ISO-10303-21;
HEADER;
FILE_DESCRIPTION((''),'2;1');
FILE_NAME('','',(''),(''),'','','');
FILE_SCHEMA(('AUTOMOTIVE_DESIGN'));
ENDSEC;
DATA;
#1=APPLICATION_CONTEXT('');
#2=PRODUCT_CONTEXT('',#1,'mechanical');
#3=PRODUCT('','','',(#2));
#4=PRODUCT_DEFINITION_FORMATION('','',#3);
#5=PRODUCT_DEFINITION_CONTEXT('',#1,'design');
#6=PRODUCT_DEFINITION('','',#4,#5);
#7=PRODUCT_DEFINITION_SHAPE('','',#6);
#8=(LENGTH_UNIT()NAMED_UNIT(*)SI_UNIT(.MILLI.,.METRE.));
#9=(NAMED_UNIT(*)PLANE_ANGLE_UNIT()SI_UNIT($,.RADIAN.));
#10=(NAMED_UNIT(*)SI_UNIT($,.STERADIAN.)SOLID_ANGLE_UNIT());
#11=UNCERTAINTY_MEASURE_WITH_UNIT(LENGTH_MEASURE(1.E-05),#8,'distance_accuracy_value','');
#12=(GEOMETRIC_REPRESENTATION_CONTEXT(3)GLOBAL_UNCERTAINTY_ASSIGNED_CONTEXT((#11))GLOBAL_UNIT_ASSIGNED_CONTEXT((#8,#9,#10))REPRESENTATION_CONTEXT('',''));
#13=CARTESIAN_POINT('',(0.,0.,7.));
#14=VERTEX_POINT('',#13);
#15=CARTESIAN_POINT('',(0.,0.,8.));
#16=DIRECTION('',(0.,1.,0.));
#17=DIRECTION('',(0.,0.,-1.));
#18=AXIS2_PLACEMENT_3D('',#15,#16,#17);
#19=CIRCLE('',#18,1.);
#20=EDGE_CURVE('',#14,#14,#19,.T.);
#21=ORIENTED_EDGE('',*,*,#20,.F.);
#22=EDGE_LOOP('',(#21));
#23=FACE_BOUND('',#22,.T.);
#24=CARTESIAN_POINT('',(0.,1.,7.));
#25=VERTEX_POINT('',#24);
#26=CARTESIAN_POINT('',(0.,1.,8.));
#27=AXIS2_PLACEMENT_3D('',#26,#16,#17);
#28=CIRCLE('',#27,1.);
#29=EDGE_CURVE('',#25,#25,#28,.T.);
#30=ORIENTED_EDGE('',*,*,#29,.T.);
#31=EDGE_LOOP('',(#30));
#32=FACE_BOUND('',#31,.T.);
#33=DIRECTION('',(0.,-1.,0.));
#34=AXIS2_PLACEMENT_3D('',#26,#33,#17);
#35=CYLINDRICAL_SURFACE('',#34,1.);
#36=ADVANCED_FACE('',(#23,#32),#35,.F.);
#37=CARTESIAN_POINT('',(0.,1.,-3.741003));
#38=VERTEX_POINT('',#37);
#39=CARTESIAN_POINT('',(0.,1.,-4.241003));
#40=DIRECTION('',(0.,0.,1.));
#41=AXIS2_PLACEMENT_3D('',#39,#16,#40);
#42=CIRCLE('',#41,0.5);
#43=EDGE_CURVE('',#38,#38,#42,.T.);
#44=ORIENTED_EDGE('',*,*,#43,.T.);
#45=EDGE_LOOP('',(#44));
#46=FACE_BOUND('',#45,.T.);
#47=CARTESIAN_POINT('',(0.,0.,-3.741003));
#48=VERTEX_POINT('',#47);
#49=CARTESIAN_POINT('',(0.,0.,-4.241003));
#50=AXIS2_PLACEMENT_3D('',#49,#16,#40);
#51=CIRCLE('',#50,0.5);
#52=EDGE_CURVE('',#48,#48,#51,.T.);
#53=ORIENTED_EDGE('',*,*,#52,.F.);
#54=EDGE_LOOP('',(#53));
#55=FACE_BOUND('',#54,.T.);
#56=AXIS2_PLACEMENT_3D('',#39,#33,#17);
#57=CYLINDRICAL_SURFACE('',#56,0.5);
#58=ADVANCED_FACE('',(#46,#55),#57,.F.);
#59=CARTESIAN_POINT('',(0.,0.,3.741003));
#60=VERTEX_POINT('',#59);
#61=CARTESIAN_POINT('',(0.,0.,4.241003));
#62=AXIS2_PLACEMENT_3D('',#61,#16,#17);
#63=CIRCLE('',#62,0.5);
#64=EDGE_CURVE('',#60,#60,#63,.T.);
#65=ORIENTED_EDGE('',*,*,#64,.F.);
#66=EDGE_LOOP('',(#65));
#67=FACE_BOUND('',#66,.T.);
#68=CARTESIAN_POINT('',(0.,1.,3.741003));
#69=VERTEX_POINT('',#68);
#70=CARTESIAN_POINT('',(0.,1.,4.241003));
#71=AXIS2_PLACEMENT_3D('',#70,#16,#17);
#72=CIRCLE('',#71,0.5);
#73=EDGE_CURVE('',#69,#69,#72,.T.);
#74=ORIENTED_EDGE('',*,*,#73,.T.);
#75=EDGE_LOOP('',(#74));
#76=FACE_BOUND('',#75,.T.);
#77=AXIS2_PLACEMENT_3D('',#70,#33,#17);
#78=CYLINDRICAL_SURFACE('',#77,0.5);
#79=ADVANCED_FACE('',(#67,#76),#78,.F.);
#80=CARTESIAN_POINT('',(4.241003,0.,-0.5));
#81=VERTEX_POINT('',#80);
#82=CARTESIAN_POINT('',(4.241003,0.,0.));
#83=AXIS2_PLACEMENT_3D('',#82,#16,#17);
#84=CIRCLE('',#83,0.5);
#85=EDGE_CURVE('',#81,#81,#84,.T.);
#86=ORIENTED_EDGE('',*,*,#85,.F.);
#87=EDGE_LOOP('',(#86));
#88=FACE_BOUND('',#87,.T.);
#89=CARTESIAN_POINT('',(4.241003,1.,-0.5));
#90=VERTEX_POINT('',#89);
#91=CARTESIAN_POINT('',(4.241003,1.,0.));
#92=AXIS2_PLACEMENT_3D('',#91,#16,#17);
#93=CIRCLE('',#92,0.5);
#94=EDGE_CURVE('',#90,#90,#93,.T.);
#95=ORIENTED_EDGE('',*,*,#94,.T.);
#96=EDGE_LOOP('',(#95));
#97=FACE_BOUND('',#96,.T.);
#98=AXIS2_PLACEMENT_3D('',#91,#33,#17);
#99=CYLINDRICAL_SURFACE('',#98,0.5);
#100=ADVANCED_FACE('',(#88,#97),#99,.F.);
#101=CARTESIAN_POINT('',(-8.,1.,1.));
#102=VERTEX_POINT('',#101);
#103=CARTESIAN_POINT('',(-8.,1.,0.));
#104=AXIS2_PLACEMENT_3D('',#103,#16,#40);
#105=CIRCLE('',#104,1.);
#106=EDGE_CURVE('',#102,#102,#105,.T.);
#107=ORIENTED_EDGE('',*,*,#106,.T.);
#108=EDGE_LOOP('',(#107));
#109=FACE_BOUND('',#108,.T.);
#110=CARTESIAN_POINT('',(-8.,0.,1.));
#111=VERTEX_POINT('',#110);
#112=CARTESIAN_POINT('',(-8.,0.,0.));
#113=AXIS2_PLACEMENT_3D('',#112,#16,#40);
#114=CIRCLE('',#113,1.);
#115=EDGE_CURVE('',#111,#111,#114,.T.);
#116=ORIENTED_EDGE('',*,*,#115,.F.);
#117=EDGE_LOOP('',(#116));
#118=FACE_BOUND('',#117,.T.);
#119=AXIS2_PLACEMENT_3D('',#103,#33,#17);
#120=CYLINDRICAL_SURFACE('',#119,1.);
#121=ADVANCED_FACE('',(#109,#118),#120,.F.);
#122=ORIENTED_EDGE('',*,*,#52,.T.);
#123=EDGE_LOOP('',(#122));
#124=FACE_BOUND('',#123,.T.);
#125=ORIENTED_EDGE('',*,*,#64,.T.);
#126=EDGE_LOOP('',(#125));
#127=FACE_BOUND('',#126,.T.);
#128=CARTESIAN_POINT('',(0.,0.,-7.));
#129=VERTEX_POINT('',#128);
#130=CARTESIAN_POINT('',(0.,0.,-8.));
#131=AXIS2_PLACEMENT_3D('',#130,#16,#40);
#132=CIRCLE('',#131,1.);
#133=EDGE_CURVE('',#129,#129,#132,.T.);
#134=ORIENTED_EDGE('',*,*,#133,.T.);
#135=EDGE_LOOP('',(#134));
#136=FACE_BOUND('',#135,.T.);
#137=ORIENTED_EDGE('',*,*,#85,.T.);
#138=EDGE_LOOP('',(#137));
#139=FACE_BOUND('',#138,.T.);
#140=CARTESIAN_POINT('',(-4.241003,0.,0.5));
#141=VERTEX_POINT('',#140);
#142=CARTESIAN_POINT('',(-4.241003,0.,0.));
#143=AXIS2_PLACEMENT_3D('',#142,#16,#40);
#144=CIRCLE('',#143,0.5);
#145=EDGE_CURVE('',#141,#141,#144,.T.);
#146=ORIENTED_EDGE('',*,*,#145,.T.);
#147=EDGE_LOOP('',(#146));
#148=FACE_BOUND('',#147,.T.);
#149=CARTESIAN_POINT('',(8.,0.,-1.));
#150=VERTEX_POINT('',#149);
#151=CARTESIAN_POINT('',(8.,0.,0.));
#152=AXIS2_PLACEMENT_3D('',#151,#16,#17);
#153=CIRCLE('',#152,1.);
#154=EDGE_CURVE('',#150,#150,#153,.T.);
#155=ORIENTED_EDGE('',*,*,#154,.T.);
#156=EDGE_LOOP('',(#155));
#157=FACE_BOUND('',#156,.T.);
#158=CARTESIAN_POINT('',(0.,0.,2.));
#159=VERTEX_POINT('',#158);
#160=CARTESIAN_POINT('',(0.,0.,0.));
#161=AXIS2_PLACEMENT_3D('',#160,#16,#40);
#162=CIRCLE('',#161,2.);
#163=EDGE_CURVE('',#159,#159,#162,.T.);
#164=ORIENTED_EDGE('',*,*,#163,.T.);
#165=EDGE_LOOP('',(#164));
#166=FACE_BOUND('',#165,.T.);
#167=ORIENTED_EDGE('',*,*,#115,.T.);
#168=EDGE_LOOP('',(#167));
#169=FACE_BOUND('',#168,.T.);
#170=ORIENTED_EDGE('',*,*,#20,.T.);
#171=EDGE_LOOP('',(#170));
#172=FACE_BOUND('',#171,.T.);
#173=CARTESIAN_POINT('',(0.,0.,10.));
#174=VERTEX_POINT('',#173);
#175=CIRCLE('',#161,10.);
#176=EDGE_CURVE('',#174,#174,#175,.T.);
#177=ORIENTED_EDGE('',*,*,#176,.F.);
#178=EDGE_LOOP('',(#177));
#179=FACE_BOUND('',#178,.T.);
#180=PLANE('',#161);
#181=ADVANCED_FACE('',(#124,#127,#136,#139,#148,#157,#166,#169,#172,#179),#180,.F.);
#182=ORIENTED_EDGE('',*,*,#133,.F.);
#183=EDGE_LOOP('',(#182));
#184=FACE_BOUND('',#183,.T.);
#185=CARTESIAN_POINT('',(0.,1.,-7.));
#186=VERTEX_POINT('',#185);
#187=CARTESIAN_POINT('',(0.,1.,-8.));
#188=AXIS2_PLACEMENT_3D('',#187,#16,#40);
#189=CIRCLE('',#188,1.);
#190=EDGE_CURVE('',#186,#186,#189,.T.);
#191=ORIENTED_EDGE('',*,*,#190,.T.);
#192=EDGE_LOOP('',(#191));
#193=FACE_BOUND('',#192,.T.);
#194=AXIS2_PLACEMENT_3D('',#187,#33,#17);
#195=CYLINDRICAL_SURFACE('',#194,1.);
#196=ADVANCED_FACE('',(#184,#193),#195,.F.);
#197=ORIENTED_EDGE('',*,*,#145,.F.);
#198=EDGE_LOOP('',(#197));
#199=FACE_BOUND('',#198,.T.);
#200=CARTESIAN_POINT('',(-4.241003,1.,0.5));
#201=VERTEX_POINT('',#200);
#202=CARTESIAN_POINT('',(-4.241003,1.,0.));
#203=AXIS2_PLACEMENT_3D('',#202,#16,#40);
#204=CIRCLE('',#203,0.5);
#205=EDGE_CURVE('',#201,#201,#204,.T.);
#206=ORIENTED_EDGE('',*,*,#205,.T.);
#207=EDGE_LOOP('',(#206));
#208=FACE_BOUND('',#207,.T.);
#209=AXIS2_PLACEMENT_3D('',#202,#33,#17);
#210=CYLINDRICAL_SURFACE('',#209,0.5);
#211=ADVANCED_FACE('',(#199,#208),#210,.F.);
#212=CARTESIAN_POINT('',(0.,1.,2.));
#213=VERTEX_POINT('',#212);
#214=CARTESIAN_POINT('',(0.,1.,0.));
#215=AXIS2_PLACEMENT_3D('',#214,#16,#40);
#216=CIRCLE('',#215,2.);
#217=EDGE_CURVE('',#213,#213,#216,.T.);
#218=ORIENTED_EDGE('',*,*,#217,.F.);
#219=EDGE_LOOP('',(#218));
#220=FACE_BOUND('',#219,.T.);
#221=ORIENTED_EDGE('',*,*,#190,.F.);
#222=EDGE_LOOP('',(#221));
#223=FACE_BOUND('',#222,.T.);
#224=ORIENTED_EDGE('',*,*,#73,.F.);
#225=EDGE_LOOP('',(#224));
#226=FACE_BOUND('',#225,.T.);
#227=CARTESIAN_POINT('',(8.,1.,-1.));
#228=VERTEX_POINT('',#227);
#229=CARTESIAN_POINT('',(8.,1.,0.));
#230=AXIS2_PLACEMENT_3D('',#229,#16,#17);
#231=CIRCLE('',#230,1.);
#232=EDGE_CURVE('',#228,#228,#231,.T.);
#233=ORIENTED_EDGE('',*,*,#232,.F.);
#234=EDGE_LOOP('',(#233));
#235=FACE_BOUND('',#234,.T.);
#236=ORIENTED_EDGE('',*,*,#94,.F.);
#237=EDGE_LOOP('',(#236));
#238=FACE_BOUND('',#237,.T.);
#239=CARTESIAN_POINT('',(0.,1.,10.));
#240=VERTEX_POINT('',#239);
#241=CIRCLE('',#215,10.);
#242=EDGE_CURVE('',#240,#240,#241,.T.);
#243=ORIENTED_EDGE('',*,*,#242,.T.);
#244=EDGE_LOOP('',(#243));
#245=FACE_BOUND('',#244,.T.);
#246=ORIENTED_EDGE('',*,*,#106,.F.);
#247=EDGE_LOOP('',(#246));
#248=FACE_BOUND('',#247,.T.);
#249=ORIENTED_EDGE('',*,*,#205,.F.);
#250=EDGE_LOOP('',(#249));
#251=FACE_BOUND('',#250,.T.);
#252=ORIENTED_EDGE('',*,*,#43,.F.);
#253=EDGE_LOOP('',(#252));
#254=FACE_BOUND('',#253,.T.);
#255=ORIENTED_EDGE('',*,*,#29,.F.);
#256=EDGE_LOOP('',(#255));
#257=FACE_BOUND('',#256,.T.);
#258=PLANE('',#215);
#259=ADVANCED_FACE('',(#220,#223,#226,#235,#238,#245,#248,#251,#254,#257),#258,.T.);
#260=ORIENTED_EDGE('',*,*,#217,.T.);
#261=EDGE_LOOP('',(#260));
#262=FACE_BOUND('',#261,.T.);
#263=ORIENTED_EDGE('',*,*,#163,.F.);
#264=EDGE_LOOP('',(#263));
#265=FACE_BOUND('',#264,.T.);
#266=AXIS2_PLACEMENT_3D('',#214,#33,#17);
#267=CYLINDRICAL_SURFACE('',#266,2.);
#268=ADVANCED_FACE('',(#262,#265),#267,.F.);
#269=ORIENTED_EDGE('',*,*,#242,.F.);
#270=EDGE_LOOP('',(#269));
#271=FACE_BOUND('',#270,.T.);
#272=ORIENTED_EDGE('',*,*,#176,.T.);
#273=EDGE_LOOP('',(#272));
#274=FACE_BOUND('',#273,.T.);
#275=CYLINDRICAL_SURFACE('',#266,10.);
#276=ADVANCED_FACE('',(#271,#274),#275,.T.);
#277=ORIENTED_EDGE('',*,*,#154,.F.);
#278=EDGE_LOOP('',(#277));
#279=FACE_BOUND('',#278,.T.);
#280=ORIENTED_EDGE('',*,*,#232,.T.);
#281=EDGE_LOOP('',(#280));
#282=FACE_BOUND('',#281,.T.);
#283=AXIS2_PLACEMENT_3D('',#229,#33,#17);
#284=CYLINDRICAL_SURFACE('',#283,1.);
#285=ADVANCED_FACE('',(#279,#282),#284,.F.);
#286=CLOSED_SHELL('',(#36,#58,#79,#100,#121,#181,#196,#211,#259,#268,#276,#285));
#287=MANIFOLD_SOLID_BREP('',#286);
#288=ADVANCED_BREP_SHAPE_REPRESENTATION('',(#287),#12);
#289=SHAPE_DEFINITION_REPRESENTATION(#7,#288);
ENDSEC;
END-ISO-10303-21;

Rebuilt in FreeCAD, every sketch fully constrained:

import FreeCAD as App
import Part
import Sketcher

doc = App.newDocument("Part")
body = doc.addObject("PartDesign::Body", "Body")

sketch1 = body.newObject("Sketcher::SketchObject", "Sketch")
sketch1.AttachmentSupport = (doc.getObject("XZ_Plane"), [""])
sketch1.MapMode = "FlatFace"
sketch1.addGeometry([
    Part.Circle(App.Vector(0, 0, 0), App.Vector(0, 0, 1), 10),
    Part.Circle(App.Vector(0, -8, 0), App.Vector(0, 0, 1), 1),
    Part.Circle(App.Vector(0, -4.2, 0), App.Vector(0, 0, 1), 0.5),
    Part.Circle(App.Vector(-8, 0, 0), App.Vector(0, 0, 1), 1),
    Part.Circle(App.Vector(-4.2, 0, 0), App.Vector(0, 0, 1), 0.5),
    Part.Circle(App.Vector(8, 0, 0), App.Vector(0, 0, 1), 1),
    Part.Circle(App.Vector(0, 0, 0), App.Vector(0, 0, 1), 2),
    Part.Circle(App.Vector(0, 4.2, 0), App.Vector(0, 0, 1), 0.5),
    Part.Circle(App.Vector(4.2, 0, 0), App.Vector(0, 0, 1), 0.5),
    Part.Circle(App.Vector(0, 8, 0), App.Vector(0, 0, 1), 1),
], False)
sketch1.addConstraint([
    Sketcher.Constraint("Coincident", 0, 3, -1, 1),
    Sketcher.Constraint("Coincident", 6, 3, -1, 1),
    Sketcher.Constraint("Equal", 1, 3),
    Sketcher.Constraint("Equal", 2, 4),
    Sketcher.Constraint("Equal", 3, 5),
    Sketcher.Constraint("Equal", 4, 7),
    Sketcher.Constraint("Equal", 7, 8),
    Sketcher.Constraint("Equal", 5, 9),
    Sketcher.Constraint("Symmetric", 3, 3, 5, 3, -1, 1),
    Sketcher.Constraint("Symmetric", 2, 3, 7, 3, -1, 1),
    Sketcher.Constraint("Symmetric", 4, 3, 8, 3, -1, 1),
    Sketcher.Constraint("Symmetric", 1, 3, 9, 3, -1, 1),
    Sketcher.Constraint("PointOnObject", 1, 3, -2),
    Sketcher.Constraint("PointOnObject", 2, 3, -2),
    Sketcher.Constraint("PointOnObject", 3, 3, -1),
    Sketcher.Constraint("PointOnObject", 4, 3, -1),
    Sketcher.Constraint("Diameter", 0, 20.0),
    Sketcher.Constraint("Diameter", 1, 2.0),
    Sketcher.Constraint("Diameter", 2, 1.0),
    Sketcher.Constraint("Diameter", 6, 4.0),
    Sketcher.Constraint("DistanceY", 1, 3, -1, 1, 8.0),
    Sketcher.Constraint("DistanceX", 3, 3, -1, 1, 8.0),
    Sketcher.Constraint("DistanceY", 2, 3, -1, 1, 4.241003),
    Sketcher.Constraint("DistanceX", 4, 3, -1, 1, 4.241003),
])
pad1 = body.newObject("PartDesign::Pad", "Pad")
pad1.Profile = sketch1
pad1.Length = 1
pad1.Reversed = True

doc.recompute()
